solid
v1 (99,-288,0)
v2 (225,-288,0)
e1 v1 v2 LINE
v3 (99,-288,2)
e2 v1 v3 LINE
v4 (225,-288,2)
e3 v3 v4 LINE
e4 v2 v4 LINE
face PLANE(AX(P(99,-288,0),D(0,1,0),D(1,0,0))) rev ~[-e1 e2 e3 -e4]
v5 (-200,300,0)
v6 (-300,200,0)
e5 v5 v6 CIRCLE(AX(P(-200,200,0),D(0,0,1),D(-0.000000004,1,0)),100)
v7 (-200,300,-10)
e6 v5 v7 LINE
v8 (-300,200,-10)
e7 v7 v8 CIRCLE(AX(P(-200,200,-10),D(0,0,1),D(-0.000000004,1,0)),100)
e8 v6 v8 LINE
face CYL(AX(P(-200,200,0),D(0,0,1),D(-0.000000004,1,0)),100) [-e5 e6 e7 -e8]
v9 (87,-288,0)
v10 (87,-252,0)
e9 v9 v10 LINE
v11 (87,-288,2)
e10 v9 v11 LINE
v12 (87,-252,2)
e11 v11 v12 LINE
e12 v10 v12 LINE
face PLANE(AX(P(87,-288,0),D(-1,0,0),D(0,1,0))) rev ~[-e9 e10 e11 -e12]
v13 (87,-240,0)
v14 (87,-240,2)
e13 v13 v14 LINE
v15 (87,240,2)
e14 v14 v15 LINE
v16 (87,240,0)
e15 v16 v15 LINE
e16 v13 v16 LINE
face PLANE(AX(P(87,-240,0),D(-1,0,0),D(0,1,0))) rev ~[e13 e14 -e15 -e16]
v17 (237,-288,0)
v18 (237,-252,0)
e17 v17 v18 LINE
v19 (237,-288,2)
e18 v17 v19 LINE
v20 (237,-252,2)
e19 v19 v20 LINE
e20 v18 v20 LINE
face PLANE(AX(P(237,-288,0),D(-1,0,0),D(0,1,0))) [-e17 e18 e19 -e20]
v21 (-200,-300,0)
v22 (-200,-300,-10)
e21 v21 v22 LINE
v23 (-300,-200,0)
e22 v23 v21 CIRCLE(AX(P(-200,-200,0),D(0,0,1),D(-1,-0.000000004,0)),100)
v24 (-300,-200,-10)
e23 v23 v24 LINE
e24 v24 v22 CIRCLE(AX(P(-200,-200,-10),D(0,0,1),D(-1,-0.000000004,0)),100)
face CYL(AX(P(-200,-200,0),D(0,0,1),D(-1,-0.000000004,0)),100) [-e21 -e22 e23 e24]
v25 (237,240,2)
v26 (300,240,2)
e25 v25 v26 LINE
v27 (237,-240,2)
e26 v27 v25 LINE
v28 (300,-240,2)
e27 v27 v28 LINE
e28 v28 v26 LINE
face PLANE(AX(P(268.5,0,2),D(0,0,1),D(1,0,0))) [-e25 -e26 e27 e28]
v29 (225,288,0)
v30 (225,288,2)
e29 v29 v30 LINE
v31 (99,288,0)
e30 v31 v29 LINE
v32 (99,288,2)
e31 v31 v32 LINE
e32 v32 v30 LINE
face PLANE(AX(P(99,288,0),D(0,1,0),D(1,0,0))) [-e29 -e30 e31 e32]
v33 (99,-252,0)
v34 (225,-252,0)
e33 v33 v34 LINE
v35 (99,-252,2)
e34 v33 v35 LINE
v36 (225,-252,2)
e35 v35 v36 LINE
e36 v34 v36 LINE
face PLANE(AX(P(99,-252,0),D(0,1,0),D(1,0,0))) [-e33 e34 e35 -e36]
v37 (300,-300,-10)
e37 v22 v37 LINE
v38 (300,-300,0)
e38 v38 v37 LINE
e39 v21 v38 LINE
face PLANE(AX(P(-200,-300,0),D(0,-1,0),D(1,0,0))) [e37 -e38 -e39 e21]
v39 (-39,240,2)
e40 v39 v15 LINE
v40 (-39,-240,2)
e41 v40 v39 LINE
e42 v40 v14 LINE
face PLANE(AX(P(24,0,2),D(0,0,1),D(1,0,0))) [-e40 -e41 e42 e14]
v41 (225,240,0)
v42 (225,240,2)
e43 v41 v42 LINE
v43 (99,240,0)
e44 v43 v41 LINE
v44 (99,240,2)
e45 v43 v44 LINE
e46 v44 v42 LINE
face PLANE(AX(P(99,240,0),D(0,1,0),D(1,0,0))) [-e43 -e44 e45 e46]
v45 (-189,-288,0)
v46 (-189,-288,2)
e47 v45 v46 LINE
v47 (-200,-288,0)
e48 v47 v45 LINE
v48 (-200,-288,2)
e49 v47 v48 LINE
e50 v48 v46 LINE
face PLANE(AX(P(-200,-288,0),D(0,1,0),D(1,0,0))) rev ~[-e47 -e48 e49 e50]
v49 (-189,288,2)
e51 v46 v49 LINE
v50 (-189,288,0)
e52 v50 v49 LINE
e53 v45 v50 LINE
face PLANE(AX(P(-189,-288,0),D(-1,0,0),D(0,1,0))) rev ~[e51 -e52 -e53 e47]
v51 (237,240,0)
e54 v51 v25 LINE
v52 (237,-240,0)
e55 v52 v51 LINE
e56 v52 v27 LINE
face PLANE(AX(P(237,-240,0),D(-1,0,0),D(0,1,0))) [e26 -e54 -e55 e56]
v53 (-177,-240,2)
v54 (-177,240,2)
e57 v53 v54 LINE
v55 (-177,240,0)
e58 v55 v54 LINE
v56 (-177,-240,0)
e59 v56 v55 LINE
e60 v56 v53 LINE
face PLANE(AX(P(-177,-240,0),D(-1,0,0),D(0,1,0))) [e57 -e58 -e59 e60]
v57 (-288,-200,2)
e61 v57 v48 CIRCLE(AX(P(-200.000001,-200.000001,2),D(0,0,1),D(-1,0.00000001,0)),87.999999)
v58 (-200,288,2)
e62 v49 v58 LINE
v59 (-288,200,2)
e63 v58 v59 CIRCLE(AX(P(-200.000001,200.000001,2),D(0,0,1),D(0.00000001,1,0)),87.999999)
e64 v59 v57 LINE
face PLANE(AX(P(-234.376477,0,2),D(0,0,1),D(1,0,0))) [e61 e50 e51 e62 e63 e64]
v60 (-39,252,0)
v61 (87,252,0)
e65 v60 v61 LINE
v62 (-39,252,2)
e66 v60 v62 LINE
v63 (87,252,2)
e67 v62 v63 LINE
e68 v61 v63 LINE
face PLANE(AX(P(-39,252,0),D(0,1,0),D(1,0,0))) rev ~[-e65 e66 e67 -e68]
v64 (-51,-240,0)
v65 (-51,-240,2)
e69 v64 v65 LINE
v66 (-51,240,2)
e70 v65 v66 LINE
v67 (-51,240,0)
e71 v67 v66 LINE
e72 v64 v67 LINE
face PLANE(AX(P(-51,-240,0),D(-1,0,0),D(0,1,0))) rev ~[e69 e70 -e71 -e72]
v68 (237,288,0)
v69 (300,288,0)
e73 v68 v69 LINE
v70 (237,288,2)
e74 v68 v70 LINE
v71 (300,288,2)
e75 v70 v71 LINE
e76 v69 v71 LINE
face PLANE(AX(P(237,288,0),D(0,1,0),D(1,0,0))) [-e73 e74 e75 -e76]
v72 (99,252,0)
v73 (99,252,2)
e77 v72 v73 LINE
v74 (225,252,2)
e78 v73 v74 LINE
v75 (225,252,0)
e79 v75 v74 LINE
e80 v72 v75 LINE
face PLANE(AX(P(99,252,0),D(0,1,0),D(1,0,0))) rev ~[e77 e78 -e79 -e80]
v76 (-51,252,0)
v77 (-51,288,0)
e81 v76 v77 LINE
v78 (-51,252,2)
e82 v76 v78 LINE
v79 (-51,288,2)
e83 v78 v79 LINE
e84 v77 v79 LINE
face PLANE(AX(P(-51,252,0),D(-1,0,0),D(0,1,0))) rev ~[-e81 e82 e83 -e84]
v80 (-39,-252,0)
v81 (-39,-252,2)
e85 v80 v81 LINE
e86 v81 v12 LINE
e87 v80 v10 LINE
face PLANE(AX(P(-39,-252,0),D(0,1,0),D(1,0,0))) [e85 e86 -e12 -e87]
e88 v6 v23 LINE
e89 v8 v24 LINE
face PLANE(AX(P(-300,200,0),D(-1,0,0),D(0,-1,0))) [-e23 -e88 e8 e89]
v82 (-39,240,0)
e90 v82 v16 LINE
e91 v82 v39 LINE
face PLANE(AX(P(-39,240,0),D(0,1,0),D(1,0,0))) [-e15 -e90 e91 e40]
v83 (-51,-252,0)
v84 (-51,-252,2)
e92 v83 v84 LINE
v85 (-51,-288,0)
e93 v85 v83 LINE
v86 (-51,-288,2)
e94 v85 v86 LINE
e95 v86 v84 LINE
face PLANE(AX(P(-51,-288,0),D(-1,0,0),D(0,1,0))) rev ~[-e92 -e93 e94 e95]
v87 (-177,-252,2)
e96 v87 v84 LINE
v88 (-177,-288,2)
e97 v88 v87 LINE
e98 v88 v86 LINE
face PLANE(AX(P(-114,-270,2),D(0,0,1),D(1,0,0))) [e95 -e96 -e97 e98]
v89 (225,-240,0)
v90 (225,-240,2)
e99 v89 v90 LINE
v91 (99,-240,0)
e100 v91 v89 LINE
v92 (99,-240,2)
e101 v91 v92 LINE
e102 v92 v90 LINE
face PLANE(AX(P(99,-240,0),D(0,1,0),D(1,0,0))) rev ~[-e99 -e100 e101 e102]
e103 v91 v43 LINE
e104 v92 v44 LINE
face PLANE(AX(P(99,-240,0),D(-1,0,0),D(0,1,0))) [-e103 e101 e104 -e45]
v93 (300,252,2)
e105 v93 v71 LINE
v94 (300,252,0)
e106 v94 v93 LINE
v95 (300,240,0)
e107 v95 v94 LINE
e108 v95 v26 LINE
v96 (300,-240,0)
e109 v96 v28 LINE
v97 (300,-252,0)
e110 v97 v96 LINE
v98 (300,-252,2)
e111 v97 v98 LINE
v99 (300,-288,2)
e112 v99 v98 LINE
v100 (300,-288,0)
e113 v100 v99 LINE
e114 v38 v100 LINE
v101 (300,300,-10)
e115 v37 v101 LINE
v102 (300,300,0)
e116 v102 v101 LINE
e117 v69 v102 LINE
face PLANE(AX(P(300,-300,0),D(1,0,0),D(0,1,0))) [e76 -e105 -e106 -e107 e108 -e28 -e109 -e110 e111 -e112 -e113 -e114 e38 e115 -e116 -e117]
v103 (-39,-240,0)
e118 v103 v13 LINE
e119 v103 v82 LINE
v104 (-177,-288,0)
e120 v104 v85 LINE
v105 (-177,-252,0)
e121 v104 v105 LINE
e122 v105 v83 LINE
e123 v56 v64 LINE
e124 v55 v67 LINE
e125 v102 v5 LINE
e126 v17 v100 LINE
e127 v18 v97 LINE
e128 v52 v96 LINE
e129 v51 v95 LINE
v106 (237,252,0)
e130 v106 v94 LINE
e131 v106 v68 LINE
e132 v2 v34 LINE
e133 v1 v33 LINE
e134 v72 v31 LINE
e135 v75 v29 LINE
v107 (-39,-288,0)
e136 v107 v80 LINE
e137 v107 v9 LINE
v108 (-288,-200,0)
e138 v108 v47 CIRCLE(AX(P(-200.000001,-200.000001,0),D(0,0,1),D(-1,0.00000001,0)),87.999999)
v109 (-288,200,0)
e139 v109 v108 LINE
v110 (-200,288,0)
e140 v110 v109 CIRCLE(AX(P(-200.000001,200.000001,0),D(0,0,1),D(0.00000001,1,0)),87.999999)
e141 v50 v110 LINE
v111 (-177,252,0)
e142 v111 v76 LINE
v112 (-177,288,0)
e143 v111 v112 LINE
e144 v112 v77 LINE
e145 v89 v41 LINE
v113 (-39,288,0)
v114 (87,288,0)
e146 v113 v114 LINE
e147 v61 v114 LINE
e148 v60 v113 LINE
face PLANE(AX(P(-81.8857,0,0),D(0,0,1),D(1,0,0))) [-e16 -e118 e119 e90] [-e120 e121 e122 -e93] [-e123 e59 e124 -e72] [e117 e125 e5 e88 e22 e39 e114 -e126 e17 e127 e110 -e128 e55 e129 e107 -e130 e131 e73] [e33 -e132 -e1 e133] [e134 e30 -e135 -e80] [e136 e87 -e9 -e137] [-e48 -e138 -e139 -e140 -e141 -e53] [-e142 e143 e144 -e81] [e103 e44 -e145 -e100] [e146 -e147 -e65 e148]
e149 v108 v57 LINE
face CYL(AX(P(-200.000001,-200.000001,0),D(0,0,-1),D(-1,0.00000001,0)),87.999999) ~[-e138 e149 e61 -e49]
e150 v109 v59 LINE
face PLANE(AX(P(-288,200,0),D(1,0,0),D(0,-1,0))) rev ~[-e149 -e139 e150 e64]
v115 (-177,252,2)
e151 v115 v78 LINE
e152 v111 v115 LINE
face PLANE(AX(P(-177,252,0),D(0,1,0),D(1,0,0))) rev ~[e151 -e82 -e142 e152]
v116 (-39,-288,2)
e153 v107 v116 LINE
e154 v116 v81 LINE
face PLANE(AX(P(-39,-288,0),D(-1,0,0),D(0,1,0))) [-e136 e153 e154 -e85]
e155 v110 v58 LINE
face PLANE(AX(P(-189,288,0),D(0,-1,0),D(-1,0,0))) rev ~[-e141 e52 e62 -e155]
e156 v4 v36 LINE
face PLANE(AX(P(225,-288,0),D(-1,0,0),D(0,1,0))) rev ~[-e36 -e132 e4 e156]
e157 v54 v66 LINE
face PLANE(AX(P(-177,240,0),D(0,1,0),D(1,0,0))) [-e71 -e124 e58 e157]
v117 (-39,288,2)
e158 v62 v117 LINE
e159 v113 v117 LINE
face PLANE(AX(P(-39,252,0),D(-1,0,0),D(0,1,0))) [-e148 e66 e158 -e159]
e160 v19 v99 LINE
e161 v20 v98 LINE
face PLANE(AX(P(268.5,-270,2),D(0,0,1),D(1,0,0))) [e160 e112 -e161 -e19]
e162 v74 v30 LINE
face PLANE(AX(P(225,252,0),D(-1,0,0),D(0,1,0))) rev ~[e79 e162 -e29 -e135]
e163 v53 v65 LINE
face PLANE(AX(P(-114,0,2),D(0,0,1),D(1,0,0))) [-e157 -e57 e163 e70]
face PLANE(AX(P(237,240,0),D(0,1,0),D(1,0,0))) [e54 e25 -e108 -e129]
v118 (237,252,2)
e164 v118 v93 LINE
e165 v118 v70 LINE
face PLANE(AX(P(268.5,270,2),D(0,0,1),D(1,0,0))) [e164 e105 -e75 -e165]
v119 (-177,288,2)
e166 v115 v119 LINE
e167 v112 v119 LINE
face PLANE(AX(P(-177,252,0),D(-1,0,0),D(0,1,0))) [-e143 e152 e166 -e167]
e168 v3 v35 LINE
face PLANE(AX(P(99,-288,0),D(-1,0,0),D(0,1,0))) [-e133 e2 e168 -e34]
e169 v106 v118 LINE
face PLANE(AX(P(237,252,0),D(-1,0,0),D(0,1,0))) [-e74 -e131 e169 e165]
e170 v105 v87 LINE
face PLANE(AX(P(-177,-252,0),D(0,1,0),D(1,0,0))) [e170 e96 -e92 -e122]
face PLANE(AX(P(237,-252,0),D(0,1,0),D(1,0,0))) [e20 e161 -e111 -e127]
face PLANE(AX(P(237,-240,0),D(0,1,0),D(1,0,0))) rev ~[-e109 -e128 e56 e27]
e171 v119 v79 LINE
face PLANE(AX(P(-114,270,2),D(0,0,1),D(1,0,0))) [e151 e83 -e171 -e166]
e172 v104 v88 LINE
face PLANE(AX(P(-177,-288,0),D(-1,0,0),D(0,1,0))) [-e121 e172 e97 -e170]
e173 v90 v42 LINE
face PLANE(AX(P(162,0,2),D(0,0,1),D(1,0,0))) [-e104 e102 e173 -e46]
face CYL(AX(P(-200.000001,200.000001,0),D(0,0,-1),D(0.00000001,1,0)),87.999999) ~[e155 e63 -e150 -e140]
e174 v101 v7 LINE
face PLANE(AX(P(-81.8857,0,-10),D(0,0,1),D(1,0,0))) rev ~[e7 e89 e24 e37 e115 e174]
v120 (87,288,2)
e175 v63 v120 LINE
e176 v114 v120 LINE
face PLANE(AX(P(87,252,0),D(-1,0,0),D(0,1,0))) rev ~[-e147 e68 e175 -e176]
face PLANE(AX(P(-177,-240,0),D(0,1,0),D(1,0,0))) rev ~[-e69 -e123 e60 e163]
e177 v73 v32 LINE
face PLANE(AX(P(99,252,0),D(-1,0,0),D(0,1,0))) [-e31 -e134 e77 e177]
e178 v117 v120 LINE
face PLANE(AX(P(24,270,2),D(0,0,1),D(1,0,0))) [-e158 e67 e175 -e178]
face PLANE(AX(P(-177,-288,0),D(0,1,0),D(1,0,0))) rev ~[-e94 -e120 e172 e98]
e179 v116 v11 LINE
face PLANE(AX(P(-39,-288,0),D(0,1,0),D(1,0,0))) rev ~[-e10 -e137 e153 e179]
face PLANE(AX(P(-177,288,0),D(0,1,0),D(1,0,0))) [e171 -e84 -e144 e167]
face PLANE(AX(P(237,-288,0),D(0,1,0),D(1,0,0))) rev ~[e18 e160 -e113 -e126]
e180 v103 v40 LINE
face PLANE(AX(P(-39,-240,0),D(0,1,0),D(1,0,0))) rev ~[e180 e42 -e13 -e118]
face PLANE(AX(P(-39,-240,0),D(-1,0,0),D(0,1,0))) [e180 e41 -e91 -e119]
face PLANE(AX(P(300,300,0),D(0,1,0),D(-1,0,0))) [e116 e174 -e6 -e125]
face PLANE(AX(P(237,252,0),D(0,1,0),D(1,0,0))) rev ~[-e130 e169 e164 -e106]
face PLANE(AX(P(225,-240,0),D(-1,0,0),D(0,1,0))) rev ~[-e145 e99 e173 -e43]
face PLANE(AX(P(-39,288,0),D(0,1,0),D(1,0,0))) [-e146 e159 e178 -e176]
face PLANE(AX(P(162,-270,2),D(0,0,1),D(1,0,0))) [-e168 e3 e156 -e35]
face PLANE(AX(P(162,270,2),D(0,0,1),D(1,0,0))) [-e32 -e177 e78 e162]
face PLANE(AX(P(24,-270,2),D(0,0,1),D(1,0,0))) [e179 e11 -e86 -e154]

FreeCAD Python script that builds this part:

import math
import FreeCAD as App
import Part
import Sketcher

V = App.Vector
Q = App.Units.Quantity


def add_polygon(sketch, points):
    """Adds a closed chain of lines whose ends are joined by coincident constraints."""
    first, n = sketch.GeometryCount, len(points)
    for a, b in zip(points, points[1:] + points[:1]):
        sketch.addGeometry(Part.LineSegment(App.Vector(*a, 0), App.Vector(*b, 0)), False)
    for i in range(n):
        sketch.addConstraint(Sketcher.Constraint("Coincident", first + i, 2, first + (i + 1) % n, 1))

doc = App.newDocument("Part")
body = doc.addObject("PartDesign::Body", "Body")

sketch1 = body.newObject("Sketcher::SketchObject", "Sketch")
sketch1.AttachmentSupport = (doc.getObject("XY_Plane"), [""])
sketch1.MapMode = "FlatFace"
sketch1.addGeometry(Part.LineSegment(V(300, 300, 0), V(-200, 300, 0)), False)
sketch1.addGeometry(Part.ArcOfCircle(Part.Circle(V(-200, 200, 0), V(0, 0, 1), 100), math.radians(90), math.radians(180)), False)
sketch1.addGeometry(Part.LineSegment(V(-300, 200, 0), V(-300, -200, 0)), False)
sketch1.addGeometry(Part.ArcOfCircle(Part.Circle(V(-200, -200, 0), V(0, 0, 1), 100), math.radians(-180), math.radians(-90)), False)
sketch1.addGeometry(Part.LineSegment(V(-200, -300, 0), V(300, -300, 0)), False)
sketch1.addGeometry(Part.LineSegment(V(300, -300, 0), V(300, 300, 0)), False)
sketch1.addConstraint(Sketcher.Constraint("Tangent", 0, 2, 1, 1))
sketch1.addConstraint(Sketcher.Constraint("Tangent", 1, 2, 2, 1))
sketch1.addConstraint(Sketcher.Constraint("Tangent", 2, 2, 3, 1))
sketch1.addConstraint(Sketcher.Constraint("Tangent", 3, 2, 4, 1))
sketch1.addConstraint(Sketcher.Constraint("Coincident", 4, 2, 5, 1))
sketch1.addConstraint(Sketcher.Constraint("Coincident", 5, 2, 0, 1))
sketch1.addConstraint(Sketcher.Constraint("Horizontal", 0))
sketch1.addConstraint(Sketcher.Constraint("Vertical", 2))
sketch1.addConstraint(Sketcher.Constraint("Horizontal", 4))
sketch1.addConstraint(Sketcher.Constraint("Vertical", 5))
sketch1.addConstraint(Sketcher.Constraint("Equal", 1, 3))
sketch1.addConstraint(Sketcher.Constraint("Radius", 1, Q("100 mm")))
sketch1.addConstraint(Sketcher.Constraint("DistanceX", 0, 2, 0, 1, Q("500 mm")))
sketch1.addConstraint(Sketcher.Constraint("DistanceY", 2, 2, 2, 1, Q("400 mm")))
sketch1.addConstraint(Sketcher.Constraint("DistanceX", 1, 3, -1, 1, Q("200 mm")))
sketch1.addConstraint(Sketcher.Constraint("DistanceY", -1, 1, 1, 3, Q("200 mm")))
pad1 = body.newObject("PartDesign::Pad", "Pad")
pad1.Profile = sketch1
pad1.Length = 10
pad1.Reversed = True

sketch2 = body.newObject("Sketcher::SketchObject", "Sketch001")
sketch2.AttachmentSupport = (doc.getObject("XY_Plane"), [""])
sketch2.MapMode = "FlatFace"
add_polygon(sketch2, [(237, -252), (237, -288), (300, -288), (300, -252)])
add_polygon(sketch2, [(237, 240), (237, -240), (300, -240), (300, 240)])
add_polygon(sketch2, [(237, 288), (237, 252), (300, 252), (300, 288)])
sketch2.addGeometry(Part.ArcOfCircle(Part.Circle(V(-200.000001, -200.000001, 0), V(0, 0, 1), 87.999999), math.radians(179.999999), math.radians(270.000001)), False)
sketch2.addGeometry(Part.LineSegment(V(-200, -288, 0), V(-189, -288, 0)), False)
sketch2.addGeometry(Part.LineSegment(V(-189, -288, 0), V(-189, 288, 0)), False)
sketch2.addGeometry(Part.LineSegment(V(-189, 288, 0), V(-200, 288, 0)), False)
sketch2.addGeometry(Part.ArcOfCircle(Part.Circle(V(-200.000001, 200.000001, 0), V(0, 0, 1), 87.999999), math.radians(89.999999), math.radians(180.000001)), False)
sketch2.addGeometry(Part.LineSegment(V(-288, 200, 0), V(-288, -200, 0)), False)
add_polygon(sketch2, [(-177, 288), (-177, 252), (-51, 252), (-51, 288)])
add_polygon(sketch2, [(-39, 288), (-39, 252), (87, 252), (87, 288)])
add_polygon(sketch2, [(99, 288), (99, 252), (225, 252), (225, 288)])
add_polygon(sketch2, [(-177, -252), (-177, -288), (-51, -288), (-51, -252)])
add_polygon(sketch2, [(-177, 240), (-177, -240), (-51, -240), (-51, 240)])
add_polygon(sketch2, [(-39, 240), (-39, -240), (87, -240), (87, 240)])
add_polygon(sketch2, [(99, -252), (99, -288), (225, -288), (225, -252)])
add_polygon(sketch2, [(99, 240), (99, -240), (225, -240), (225, 240)])
add_polygon(sketch2, [(-39, -252), (-39, -288), (87, -288), (87, -252)])
sketch2.addConstraint(Sketcher.Constraint("Tangent", 12, 2, 13, 1))
sketch2.addConstraint(Sketcher.Constraint("Coincident", 13, 2, 14, 1))
sketch2.addConstraint(Sketcher.Constraint("Coincident", 14, 2, 15, 1))
sketch2.addConstraint(Sketcher.Constraint("Tangent", 15, 2, 16, 1))
sketch2.addConstraint(Sketcher.Constraint("Tangent", 16, 2, 17, 1))
sketch2.addConstraint(Sketcher.Constraint("Tangent", 17, 2, 12, 1))
sketch2.addConstraint(Sketcher.Constraint("Vertical", 0))
sketch2.addConstraint(Sketcher.Constraint("Horizontal", 1))
sketch2.addConstraint(Sketcher.Constraint("Vertical", 2))
sketch2.addConstraint(Sketcher.Constraint("Horizontal", 3))
sketch2.addConstraint(Sketcher.Constraint("Vertical", 4))
sketch2.addConstraint(Sketcher.Constraint("Horizontal", 5))
sketch2.addConstraint(Sketcher.Constraint("Vertical", 6))
sketch2.addConstraint(Sketcher.Constraint("Horizontal", 7))
sketch2.addConstraint(Sketcher.Constraint("Vertical", 8))
sketch2.addConstraint(Sketcher.Constraint("Horizontal", 9))
sketch2.addConstraint(Sketcher.Constraint("Vertical", 10))
sketch2.addConstraint(Sketcher.Constraint("Horizontal", 11))
sketch2.addConstraint(Sketcher.Constraint("Horizontal", 13))
sketch2.addConstraint(Sketcher.Constraint("Vertical", 14))
sketch2.addConstraint(Sketcher.Constraint("Horizontal", 15))
sketch2.addConstraint(Sketcher.Constraint("Vertical", 17))
sketch2.addConstraint(Sketcher.Constraint("Vertical", 18))
sketch2.addConstraint(Sketcher.Constraint("Horizontal", 19))
sketch2.addConstraint(Sketcher.Constraint("Vertical", 20))
sketch2.addConstraint(Sketcher.Constraint("Horizontal", 21))
sketch2.addConstraint(Sketcher.Constraint("Vertical", 22))
sketch2.addConstraint(Sketcher.Constraint("Horizontal", 23))
sketch2.addConstraint(Sketcher.Constraint("Vertical", 24))
sketch2.addConstraint(Sketcher.Constraint("Horizontal", 25))
sketch2.addConstraint(Sketcher.Constraint("Vertical", 26))
sketch2.addConstraint(Sketcher.Constraint("Horizontal", 27))
sketch2.addConstraint(Sketcher.Constraint("Vertical", 28))
sketch2.addConstraint(Sketcher.Constraint("Horizontal", 29))
sketch2.addConstraint(Sketcher.Constraint("Vertical", 30))
sketch2.addConstraint(Sketcher.Constraint("Horizontal", 31))
sketch2.addConstraint(Sketcher.Constraint("Vertical", 32))
sketch2.addConstraint(Sketcher.Constraint("Horizontal", 33))
sketch2.addConstraint(Sketcher.Constraint("Vertical", 34))
sketch2.addConstraint(Sketcher.Constraint("Horizontal", 35))
sketch2.addConstraint(Sketcher.Constraint("Vertical", 36))
sketch2.addConstraint(Sketcher.Constraint("Horizontal", 37))
sketch2.addConstraint(Sketcher.Constraint("Vertical", 38))
sketch2.addConstraint(Sketcher.Constraint("Horizontal", 39))
sketch2.addConstraint(Sketcher.Constraint("Vertical", 40))
sketch2.addConstraint(Sketcher.Constraint("Horizontal", 41))
sketch2.addConstraint(Sketcher.Constraint("Vertical", 42))
sketch2.addConstraint(Sketcher.Constraint("Horizontal", 43))
sketch2.addConstraint(Sketcher.Constraint("Vertical", 44))
sketch2.addConstraint(Sketcher.Constraint("Horizontal", 45))
sketch2.addConstraint(Sketcher.Constraint("Vertical", 46))
sketch2.addConstraint(Sketcher.Constraint("Horizontal", 47))
sketch2.addConstraint(Sketcher.Constraint("Vertical", 48))
sketch2.addConstraint(Sketcher.Constraint("Horizontal", 49))
sketch2.addConstraint(Sketcher.Constraint("Vertical", 50))
sketch2.addConstraint(Sketcher.Constraint("Horizontal", 51))
sketch2.addConstraint(Sketcher.Constraint("Vertical", 52))
sketch2.addConstraint(Sketcher.Constraint("Horizontal", 53))
sketch2.addConstraint(Sketcher.Constraint("Equal", 12, 16))
sketch2.addConstraint(Sketcher.Constraint("Symmetric", 3, 2, 8, 2, -1))
sketch2.addConstraint(Sketcher.Constraint("Symmetric", 1, 2, 10, 2, -1))
sketch2.addConstraint(Sketcher.Constraint("Symmetric", 21, 2, 30, 2, -1))
sketch2.addConstraint(Sketcher.Constraint("Symmetric", 19, 2, 32, 2, -1))
sketch2.addConstraint(Sketcher.Constraint("Symmetric", 29, 2, 42, 2, -1))
sketch2.addConstraint(Sketcher.Constraint("Symmetric", 27, 2, 44, 2, -1))
sketch2.addConstraint(Sketcher.Constraint("Symmetric", 25, 2, 50, 2, -1))
sketch2.addConstraint(Sketcher.Constraint("Symmetric", 23, 2, 52, 2, -1))
sketch2.addConstraint(Sketcher.Constraint("Horizontal", 1, 2, 12, 2))
sketch2.addConstraint(Sketcher.Constraint("Horizontal", 11, 2, 14, 2))
sketch2.addConstraint(Sketcher.Constraint("Horizontal", 9, 2, 18, 2))
sketch2.addConstraint(Sketcher.Constraint("Horizontal", 15, 2, 20, 2))
sketch2.addConstraint(Sketcher.Constraint("Horizontal", 19, 2, 22, 2))
sketch2.addConstraint(Sketcher.Constraint("Horizontal", 21, 2, 24, 2))
sketch2.addConstraint(Sketcher.Constraint("Horizontal", 23, 2, 26, 2))
sketch2.addConstraint(Sketcher.Constraint("Horizontal", 25, 2, 28, 2))
sketch2.addConstraint(Sketcher.Constraint("Horizontal", 5, 2, 34, 2))
sketch2.addConstraint(Sketcher.Constraint("Horizontal", 7, 2, 36, 2))
sketch2.addConstraint(Sketcher.Constraint("Horizontal", 35, 2, 38, 2))
sketch2.addConstraint(Sketcher.Constraint("Horizontal", 37, 2, 40, 2))
sketch2.addConstraint(Sketcher.Constraint("Horizontal", 39, 2, 46, 2))
sketch2.addConstraint(Sketcher.Constraint("Horizontal", 41, 2, 48, 2))
sketch2.addConstraint(Sketcher.Constraint("Vertical", 3, 2, 4, 2))
sketch2.addConstraint(Sketcher.Constraint("Vertical", 2, 2, 5, 2))
sketch2.addConstraint(Sketcher.Constraint("Vertical", 33, 2, 34, 2))
sketch2.addConstraint(Sketcher.Constraint("Vertical", 32, 2, 35, 2))
sketch2.addConstraint(Sketcher.Constraint("Vertical", 25, 2, 38, 2))
sketch2.addConstraint(Sketcher.Constraint("Vertical", 24, 2, 39, 2))
sketch2.addConstraint(Sketcher.Constraint("Vertical", 45, 2, 46, 2))
sketch2.addConstraint(Sketcher.Constraint("Vertical", 44, 2, 47, 2))
sketch2.addConstraint(Sketcher.Constraint("Equal", 21, 23))
sketch2.addConstraint(Sketcher.Constraint("Equal", 25, 27))
sketch2.addConstraint(Sketcher.Constraint("Radius", 12, Q("87.999999 mm")))
sketch2.addConstraint(Sketcher.Constraint("DistanceX", 1, 1, 1, 2, Q("63 mm")))
sketch2.addConstraint(Sketcher.Constraint("DistanceX", 13, 1, 13, 2, Q("11 mm")))
sketch2.addConstraint(Sketcher.Constraint("DistanceX", 19, 1, 19, 2, Q("126 mm")))
sketch2.addConstraint(Sketcher.Constraint("DistanceY", 0, 2, 0, 1, Q("36 mm")))
sketch2.addConstraint(Sketcher.Constraint("DistanceY", 4, 2, 4, 1, Q("480 mm")))
sketch2.addConstraint(Sketcher.Constraint("DistanceY", 14, 1, 14, 2, Q("576 mm")))
sketch2.addConstraint(Sketcher.Constraint("DistanceX", 12, 3, -1, 1, Q("200.000001 mm")))
sketch2.addConstraint(Sketcher.Constraint("DistanceX", -1, 1, 0, 2, Q("237 mm")))
sketch2.addConstraint(Sketcher.Constraint("DistanceY", 4, 2, -1, 1, Q("240 mm")))
sketch2.addConstraint(Sketcher.Constraint("DistanceX", 18, 2, -1, 1, Q("177 mm")))
sketch2.addConstraint(Sketcher.Constraint("DistanceX", 22, 2, -1, 1, Q("39 mm")))
sketch2.addConstraint(Sketcher.Constraint("DistanceX", -1, 1, 26, 2, Q("99 mm")))
pad2 = body.newObject("PartDesign::Pad", "Pad001")
pad2.Profile = sketch2
pad2.Length = 2

doc.recompute()
